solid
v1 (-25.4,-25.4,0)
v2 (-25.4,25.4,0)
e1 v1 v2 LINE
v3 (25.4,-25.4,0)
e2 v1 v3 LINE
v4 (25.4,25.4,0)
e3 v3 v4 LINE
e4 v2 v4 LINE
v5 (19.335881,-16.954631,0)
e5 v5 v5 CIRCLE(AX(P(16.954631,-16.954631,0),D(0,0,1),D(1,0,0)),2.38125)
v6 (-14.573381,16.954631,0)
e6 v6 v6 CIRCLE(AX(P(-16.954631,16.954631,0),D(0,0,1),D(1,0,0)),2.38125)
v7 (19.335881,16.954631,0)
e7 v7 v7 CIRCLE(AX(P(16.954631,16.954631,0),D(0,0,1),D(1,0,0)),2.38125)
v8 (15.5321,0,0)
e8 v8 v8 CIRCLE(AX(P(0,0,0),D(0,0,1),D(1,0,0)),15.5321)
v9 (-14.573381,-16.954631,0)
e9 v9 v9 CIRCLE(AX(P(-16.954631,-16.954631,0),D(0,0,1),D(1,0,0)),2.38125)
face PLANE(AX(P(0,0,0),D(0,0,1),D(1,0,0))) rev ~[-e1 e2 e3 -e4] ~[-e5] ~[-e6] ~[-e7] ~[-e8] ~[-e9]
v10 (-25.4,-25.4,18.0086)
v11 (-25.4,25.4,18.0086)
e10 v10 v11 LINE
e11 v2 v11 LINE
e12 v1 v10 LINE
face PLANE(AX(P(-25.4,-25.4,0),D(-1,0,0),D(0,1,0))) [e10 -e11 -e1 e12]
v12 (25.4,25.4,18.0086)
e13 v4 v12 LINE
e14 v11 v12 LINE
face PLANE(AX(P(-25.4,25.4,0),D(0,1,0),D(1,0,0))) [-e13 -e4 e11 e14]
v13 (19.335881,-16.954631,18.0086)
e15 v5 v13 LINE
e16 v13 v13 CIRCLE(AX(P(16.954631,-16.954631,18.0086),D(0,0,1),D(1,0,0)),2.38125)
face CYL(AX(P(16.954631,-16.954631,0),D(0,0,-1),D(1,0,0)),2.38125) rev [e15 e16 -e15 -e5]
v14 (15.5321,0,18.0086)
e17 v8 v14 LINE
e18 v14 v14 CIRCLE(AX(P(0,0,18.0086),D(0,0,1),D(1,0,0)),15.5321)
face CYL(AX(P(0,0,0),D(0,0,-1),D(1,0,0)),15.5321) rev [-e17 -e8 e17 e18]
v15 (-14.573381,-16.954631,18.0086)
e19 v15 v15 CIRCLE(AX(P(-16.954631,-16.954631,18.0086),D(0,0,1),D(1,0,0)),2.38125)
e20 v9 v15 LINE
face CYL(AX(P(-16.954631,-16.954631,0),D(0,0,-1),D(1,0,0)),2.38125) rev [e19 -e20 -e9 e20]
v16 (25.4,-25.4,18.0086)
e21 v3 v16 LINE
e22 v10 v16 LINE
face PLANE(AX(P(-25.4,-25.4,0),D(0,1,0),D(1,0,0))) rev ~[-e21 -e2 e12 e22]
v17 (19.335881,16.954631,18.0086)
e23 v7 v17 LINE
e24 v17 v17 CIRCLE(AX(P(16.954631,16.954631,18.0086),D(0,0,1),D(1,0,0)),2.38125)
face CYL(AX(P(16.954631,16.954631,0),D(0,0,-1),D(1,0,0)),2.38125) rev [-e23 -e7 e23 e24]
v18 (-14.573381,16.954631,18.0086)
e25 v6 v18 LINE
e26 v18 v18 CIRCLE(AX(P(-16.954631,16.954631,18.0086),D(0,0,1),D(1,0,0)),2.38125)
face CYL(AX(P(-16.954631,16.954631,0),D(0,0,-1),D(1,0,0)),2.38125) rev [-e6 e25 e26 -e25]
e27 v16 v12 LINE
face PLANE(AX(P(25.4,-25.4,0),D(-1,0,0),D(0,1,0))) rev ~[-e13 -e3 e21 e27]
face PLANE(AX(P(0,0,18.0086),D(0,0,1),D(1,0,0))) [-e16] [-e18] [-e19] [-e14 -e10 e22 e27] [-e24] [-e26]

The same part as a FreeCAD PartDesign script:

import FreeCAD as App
import Part
import Sketcher
from FreeCAD import Vector
Q = App.Units.Quantity


def add_polygon(sketch, points):
    """Adds a closed chain of lines whose ends are joined by coincident constraints."""
    first, n = sketch.GeometryCount, len(points)
    for a, b in zip(points, points[1:] + points[:1]):
        sketch.addGeometry(Part.LineSegment(App.Vector(*a, 0), App.Vector(*b, 0)), False)
    for i in range(n):
        sketch.addConstraint(Sketcher.Constraint("Coincident", first + i, 2, first + (i + 1) % n, 1))

doc = App.newDocument("Part")
body = doc.addObject("PartDesign::Body", "Body")

# Sketch on XY plane
sketch1 = body.newObject("Sketcher::SketchObject", "Sketch")
sketch1.AttachmentSupport = (doc.getObject("XY_Plane"), [""])
sketch1.MapMode = "FlatFace"
add_polygon(sketch1, [(-25.4, 25.4), (-25.4, -25.4), (25.4, -25.4), (25.4, 25.4)])  # lines 0-3
sketch1.addGeometry(Part.Circle(Vector(-16.954631, -16.954631, 0), Vector(0, 0, 1), 2.38125), False)  # 4
sketch1.addGeometry(Part.Circle(Vector(16.954631, -16.954631, 0), Vector(0, 0, 1), 2.38125), False)  # 5
sketch1.addGeometry(Part.Circle(Vector(-16.954631, 16.954631, 0), Vector(0, 0, 1), 2.38125), False)  # 6
sketch1.addGeometry(Part.Circle(Vector(0, 0, 0), Vector(0, 0, 1), 15.5321), False)  # 7
sketch1.addGeometry(Part.Circle(Vector(16.954631, 16.954631, 0), Vector(0, 0, 1), 2.38125), False)  # 8
sketch1.addConstraint([
    Sketcher.Constraint("Vertical", 0),
    Sketcher.Constraint("Horizontal", 1),
    Sketcher.Constraint("Vertical", 2),
    Sketcher.Constraint("Horizontal", 3),
    Sketcher.Constraint("Coincident", 7, 3, -1, 1),
    Sketcher.Constraint("Equal", 4, 5),
    Sketcher.Constraint("Equal", 5, 6),
    Sketcher.Constraint("Equal", 6, 8),
    Sketcher.Constraint("Symmetric", 5, 3, 6, 3, -1, 1),
    Sketcher.Constraint("Symmetric", 4, 3, 8, 3, -1, 1),
    Sketcher.Constraint("Symmetric", 0, 2, 2, 2, -1, 1),
    Sketcher.Constraint("Symmetric", 4, 3, 5, 3, -2),
    Sketcher.Constraint("Equal", 3, 0),
    Sketcher.Constraint("DistanceX", 1, 1, 1, 2, Q("2 in")),
    Sketcher.Constraint("Diameter", 4, Q("0.1875 in")),
    Sketcher.Constraint("Diameter", 7, Q("1.223 in")),
    Sketcher.Constraint("DistanceX", 4, 3, -1, 1, Q("16.954631 mm")),
    Sketcher.Constraint("DistanceY", 4, 3, -1, 1, Q("16.954631 mm")),
])
pad1 = body.newObject("PartDesign::Pad", "Pad")
pad1.Profile = sketch1
pad1.Length = Q("0.709 in")

doc.recompute()
